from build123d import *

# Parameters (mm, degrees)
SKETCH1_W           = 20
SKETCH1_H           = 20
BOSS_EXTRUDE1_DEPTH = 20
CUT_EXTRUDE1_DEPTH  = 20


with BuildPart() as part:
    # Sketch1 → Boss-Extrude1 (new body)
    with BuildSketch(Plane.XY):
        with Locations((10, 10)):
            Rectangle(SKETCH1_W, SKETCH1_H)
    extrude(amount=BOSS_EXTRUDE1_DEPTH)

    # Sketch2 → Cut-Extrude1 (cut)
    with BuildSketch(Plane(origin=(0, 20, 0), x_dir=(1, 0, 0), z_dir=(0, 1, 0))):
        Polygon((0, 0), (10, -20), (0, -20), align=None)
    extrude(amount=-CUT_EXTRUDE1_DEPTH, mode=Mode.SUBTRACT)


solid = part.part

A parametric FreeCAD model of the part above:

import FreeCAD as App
import Part
import Sketcher
from FreeCAD import Vector
Q = App.Units.Quantity

doc = App.newDocument("Part")
body = doc.addObject("PartDesign::Body", "Body")

# Sketch on XY plane
sketch1 = body.newObject("Sketcher::SketchObject", "Sketch")
sketch1.AttachmentSupport = (doc.getObject("XY_Plane"), [""])
sketch1.MapMode = "FlatFace"
sketch1.addGeometry([
    Part.LineSegment(Vector(0, 20, 0), Vector(0, 0, 0)),
    Part.LineSegment(Vector(0, 0, 0), Vector(20, 0, 0)),
    Part.LineSegment(Vector(20, 0, 0), Vector(20, 20, 0)),
    Part.LineSegment(Vector(20, 20, 0), Vector(0, 20, 0)),
], False)
sketch1.addConstraint([
    Sketcher.Constraint("Coincident", 0, 2, 1, 1),
    Sketcher.Constraint("Coincident", 1, 2, 2, 1),
    Sketcher.Constraint("Coincident", 2, 2, 3, 1),
    Sketcher.Constraint("Coincident", 3, 2, 0, 1),
    Sketcher.Constraint("Vertical", 0),
    Sketcher.Constraint("Horizontal", 1),
    Sketcher.Constraint("Vertical", 2),
    Sketcher.Constraint("Horizontal", 3),
    Sketcher.Constraint("Coincident", 0, 2, -1, 1),
    Sketcher.Constraint("Equal", 3, 0),
    Sketcher.Constraint("DistanceX", 1, 1, 1, 2, Q("20 mm")),
])
pad1 = body.newObject("PartDesign::Pad", "Pad")
pad1.Profile = sketch1
pad1.Length = 20

# Sketch on XZ plane
sketch2 = body.newObject("Sketcher::SketchObject", "Sketch001")
sketch2.AttachmentSupport = (doc.getObject("XZ_Plane"), [""])
sketch2.MapMode = "FlatFace"
sketch2.AttachmentOffset = App.Placement(Vector(0, 0, -20), App.Rotation())
sketch2.addGeometry([
    Part.LineSegment(Vector(10, 20, 0), Vector(0, 0, 0)),
    Part.LineSegment(Vector(0, 0, 0), Vector(0, 20, 0)),
    Part.LineSegment(Vector(0, 20, 0), Vector(10, 20, 0)),
], False)
sketch2.addConstraint([
    Sketcher.Constraint("Coincident", 0, 2, 1, 1),
    Sketcher.Constraint("Coincident", 1, 2, 2, 1),
    Sketcher.Constraint("Coincident", 2, 2, 0, 1),
    Sketcher.Constraint("Vertical", 1),
    Sketcher.Constraint("Horizontal", 2),
    Sketcher.Constraint("Coincident", 0, 2, -1, 1),
    Sketcher.Constraint("DistanceX", 2, 1, 2, 2, Q("10 mm")),
    Sketcher.Constraint("DistanceY", 1, 1, 1, 2, Q("20 mm")),
])
pocket1 = body.newObject("PartDesign::Pocket", "Pocket")
pocket1.Profile = sketch2
pocket1.Length = 20
pocket1.Reversed = True

doc.recompute()
